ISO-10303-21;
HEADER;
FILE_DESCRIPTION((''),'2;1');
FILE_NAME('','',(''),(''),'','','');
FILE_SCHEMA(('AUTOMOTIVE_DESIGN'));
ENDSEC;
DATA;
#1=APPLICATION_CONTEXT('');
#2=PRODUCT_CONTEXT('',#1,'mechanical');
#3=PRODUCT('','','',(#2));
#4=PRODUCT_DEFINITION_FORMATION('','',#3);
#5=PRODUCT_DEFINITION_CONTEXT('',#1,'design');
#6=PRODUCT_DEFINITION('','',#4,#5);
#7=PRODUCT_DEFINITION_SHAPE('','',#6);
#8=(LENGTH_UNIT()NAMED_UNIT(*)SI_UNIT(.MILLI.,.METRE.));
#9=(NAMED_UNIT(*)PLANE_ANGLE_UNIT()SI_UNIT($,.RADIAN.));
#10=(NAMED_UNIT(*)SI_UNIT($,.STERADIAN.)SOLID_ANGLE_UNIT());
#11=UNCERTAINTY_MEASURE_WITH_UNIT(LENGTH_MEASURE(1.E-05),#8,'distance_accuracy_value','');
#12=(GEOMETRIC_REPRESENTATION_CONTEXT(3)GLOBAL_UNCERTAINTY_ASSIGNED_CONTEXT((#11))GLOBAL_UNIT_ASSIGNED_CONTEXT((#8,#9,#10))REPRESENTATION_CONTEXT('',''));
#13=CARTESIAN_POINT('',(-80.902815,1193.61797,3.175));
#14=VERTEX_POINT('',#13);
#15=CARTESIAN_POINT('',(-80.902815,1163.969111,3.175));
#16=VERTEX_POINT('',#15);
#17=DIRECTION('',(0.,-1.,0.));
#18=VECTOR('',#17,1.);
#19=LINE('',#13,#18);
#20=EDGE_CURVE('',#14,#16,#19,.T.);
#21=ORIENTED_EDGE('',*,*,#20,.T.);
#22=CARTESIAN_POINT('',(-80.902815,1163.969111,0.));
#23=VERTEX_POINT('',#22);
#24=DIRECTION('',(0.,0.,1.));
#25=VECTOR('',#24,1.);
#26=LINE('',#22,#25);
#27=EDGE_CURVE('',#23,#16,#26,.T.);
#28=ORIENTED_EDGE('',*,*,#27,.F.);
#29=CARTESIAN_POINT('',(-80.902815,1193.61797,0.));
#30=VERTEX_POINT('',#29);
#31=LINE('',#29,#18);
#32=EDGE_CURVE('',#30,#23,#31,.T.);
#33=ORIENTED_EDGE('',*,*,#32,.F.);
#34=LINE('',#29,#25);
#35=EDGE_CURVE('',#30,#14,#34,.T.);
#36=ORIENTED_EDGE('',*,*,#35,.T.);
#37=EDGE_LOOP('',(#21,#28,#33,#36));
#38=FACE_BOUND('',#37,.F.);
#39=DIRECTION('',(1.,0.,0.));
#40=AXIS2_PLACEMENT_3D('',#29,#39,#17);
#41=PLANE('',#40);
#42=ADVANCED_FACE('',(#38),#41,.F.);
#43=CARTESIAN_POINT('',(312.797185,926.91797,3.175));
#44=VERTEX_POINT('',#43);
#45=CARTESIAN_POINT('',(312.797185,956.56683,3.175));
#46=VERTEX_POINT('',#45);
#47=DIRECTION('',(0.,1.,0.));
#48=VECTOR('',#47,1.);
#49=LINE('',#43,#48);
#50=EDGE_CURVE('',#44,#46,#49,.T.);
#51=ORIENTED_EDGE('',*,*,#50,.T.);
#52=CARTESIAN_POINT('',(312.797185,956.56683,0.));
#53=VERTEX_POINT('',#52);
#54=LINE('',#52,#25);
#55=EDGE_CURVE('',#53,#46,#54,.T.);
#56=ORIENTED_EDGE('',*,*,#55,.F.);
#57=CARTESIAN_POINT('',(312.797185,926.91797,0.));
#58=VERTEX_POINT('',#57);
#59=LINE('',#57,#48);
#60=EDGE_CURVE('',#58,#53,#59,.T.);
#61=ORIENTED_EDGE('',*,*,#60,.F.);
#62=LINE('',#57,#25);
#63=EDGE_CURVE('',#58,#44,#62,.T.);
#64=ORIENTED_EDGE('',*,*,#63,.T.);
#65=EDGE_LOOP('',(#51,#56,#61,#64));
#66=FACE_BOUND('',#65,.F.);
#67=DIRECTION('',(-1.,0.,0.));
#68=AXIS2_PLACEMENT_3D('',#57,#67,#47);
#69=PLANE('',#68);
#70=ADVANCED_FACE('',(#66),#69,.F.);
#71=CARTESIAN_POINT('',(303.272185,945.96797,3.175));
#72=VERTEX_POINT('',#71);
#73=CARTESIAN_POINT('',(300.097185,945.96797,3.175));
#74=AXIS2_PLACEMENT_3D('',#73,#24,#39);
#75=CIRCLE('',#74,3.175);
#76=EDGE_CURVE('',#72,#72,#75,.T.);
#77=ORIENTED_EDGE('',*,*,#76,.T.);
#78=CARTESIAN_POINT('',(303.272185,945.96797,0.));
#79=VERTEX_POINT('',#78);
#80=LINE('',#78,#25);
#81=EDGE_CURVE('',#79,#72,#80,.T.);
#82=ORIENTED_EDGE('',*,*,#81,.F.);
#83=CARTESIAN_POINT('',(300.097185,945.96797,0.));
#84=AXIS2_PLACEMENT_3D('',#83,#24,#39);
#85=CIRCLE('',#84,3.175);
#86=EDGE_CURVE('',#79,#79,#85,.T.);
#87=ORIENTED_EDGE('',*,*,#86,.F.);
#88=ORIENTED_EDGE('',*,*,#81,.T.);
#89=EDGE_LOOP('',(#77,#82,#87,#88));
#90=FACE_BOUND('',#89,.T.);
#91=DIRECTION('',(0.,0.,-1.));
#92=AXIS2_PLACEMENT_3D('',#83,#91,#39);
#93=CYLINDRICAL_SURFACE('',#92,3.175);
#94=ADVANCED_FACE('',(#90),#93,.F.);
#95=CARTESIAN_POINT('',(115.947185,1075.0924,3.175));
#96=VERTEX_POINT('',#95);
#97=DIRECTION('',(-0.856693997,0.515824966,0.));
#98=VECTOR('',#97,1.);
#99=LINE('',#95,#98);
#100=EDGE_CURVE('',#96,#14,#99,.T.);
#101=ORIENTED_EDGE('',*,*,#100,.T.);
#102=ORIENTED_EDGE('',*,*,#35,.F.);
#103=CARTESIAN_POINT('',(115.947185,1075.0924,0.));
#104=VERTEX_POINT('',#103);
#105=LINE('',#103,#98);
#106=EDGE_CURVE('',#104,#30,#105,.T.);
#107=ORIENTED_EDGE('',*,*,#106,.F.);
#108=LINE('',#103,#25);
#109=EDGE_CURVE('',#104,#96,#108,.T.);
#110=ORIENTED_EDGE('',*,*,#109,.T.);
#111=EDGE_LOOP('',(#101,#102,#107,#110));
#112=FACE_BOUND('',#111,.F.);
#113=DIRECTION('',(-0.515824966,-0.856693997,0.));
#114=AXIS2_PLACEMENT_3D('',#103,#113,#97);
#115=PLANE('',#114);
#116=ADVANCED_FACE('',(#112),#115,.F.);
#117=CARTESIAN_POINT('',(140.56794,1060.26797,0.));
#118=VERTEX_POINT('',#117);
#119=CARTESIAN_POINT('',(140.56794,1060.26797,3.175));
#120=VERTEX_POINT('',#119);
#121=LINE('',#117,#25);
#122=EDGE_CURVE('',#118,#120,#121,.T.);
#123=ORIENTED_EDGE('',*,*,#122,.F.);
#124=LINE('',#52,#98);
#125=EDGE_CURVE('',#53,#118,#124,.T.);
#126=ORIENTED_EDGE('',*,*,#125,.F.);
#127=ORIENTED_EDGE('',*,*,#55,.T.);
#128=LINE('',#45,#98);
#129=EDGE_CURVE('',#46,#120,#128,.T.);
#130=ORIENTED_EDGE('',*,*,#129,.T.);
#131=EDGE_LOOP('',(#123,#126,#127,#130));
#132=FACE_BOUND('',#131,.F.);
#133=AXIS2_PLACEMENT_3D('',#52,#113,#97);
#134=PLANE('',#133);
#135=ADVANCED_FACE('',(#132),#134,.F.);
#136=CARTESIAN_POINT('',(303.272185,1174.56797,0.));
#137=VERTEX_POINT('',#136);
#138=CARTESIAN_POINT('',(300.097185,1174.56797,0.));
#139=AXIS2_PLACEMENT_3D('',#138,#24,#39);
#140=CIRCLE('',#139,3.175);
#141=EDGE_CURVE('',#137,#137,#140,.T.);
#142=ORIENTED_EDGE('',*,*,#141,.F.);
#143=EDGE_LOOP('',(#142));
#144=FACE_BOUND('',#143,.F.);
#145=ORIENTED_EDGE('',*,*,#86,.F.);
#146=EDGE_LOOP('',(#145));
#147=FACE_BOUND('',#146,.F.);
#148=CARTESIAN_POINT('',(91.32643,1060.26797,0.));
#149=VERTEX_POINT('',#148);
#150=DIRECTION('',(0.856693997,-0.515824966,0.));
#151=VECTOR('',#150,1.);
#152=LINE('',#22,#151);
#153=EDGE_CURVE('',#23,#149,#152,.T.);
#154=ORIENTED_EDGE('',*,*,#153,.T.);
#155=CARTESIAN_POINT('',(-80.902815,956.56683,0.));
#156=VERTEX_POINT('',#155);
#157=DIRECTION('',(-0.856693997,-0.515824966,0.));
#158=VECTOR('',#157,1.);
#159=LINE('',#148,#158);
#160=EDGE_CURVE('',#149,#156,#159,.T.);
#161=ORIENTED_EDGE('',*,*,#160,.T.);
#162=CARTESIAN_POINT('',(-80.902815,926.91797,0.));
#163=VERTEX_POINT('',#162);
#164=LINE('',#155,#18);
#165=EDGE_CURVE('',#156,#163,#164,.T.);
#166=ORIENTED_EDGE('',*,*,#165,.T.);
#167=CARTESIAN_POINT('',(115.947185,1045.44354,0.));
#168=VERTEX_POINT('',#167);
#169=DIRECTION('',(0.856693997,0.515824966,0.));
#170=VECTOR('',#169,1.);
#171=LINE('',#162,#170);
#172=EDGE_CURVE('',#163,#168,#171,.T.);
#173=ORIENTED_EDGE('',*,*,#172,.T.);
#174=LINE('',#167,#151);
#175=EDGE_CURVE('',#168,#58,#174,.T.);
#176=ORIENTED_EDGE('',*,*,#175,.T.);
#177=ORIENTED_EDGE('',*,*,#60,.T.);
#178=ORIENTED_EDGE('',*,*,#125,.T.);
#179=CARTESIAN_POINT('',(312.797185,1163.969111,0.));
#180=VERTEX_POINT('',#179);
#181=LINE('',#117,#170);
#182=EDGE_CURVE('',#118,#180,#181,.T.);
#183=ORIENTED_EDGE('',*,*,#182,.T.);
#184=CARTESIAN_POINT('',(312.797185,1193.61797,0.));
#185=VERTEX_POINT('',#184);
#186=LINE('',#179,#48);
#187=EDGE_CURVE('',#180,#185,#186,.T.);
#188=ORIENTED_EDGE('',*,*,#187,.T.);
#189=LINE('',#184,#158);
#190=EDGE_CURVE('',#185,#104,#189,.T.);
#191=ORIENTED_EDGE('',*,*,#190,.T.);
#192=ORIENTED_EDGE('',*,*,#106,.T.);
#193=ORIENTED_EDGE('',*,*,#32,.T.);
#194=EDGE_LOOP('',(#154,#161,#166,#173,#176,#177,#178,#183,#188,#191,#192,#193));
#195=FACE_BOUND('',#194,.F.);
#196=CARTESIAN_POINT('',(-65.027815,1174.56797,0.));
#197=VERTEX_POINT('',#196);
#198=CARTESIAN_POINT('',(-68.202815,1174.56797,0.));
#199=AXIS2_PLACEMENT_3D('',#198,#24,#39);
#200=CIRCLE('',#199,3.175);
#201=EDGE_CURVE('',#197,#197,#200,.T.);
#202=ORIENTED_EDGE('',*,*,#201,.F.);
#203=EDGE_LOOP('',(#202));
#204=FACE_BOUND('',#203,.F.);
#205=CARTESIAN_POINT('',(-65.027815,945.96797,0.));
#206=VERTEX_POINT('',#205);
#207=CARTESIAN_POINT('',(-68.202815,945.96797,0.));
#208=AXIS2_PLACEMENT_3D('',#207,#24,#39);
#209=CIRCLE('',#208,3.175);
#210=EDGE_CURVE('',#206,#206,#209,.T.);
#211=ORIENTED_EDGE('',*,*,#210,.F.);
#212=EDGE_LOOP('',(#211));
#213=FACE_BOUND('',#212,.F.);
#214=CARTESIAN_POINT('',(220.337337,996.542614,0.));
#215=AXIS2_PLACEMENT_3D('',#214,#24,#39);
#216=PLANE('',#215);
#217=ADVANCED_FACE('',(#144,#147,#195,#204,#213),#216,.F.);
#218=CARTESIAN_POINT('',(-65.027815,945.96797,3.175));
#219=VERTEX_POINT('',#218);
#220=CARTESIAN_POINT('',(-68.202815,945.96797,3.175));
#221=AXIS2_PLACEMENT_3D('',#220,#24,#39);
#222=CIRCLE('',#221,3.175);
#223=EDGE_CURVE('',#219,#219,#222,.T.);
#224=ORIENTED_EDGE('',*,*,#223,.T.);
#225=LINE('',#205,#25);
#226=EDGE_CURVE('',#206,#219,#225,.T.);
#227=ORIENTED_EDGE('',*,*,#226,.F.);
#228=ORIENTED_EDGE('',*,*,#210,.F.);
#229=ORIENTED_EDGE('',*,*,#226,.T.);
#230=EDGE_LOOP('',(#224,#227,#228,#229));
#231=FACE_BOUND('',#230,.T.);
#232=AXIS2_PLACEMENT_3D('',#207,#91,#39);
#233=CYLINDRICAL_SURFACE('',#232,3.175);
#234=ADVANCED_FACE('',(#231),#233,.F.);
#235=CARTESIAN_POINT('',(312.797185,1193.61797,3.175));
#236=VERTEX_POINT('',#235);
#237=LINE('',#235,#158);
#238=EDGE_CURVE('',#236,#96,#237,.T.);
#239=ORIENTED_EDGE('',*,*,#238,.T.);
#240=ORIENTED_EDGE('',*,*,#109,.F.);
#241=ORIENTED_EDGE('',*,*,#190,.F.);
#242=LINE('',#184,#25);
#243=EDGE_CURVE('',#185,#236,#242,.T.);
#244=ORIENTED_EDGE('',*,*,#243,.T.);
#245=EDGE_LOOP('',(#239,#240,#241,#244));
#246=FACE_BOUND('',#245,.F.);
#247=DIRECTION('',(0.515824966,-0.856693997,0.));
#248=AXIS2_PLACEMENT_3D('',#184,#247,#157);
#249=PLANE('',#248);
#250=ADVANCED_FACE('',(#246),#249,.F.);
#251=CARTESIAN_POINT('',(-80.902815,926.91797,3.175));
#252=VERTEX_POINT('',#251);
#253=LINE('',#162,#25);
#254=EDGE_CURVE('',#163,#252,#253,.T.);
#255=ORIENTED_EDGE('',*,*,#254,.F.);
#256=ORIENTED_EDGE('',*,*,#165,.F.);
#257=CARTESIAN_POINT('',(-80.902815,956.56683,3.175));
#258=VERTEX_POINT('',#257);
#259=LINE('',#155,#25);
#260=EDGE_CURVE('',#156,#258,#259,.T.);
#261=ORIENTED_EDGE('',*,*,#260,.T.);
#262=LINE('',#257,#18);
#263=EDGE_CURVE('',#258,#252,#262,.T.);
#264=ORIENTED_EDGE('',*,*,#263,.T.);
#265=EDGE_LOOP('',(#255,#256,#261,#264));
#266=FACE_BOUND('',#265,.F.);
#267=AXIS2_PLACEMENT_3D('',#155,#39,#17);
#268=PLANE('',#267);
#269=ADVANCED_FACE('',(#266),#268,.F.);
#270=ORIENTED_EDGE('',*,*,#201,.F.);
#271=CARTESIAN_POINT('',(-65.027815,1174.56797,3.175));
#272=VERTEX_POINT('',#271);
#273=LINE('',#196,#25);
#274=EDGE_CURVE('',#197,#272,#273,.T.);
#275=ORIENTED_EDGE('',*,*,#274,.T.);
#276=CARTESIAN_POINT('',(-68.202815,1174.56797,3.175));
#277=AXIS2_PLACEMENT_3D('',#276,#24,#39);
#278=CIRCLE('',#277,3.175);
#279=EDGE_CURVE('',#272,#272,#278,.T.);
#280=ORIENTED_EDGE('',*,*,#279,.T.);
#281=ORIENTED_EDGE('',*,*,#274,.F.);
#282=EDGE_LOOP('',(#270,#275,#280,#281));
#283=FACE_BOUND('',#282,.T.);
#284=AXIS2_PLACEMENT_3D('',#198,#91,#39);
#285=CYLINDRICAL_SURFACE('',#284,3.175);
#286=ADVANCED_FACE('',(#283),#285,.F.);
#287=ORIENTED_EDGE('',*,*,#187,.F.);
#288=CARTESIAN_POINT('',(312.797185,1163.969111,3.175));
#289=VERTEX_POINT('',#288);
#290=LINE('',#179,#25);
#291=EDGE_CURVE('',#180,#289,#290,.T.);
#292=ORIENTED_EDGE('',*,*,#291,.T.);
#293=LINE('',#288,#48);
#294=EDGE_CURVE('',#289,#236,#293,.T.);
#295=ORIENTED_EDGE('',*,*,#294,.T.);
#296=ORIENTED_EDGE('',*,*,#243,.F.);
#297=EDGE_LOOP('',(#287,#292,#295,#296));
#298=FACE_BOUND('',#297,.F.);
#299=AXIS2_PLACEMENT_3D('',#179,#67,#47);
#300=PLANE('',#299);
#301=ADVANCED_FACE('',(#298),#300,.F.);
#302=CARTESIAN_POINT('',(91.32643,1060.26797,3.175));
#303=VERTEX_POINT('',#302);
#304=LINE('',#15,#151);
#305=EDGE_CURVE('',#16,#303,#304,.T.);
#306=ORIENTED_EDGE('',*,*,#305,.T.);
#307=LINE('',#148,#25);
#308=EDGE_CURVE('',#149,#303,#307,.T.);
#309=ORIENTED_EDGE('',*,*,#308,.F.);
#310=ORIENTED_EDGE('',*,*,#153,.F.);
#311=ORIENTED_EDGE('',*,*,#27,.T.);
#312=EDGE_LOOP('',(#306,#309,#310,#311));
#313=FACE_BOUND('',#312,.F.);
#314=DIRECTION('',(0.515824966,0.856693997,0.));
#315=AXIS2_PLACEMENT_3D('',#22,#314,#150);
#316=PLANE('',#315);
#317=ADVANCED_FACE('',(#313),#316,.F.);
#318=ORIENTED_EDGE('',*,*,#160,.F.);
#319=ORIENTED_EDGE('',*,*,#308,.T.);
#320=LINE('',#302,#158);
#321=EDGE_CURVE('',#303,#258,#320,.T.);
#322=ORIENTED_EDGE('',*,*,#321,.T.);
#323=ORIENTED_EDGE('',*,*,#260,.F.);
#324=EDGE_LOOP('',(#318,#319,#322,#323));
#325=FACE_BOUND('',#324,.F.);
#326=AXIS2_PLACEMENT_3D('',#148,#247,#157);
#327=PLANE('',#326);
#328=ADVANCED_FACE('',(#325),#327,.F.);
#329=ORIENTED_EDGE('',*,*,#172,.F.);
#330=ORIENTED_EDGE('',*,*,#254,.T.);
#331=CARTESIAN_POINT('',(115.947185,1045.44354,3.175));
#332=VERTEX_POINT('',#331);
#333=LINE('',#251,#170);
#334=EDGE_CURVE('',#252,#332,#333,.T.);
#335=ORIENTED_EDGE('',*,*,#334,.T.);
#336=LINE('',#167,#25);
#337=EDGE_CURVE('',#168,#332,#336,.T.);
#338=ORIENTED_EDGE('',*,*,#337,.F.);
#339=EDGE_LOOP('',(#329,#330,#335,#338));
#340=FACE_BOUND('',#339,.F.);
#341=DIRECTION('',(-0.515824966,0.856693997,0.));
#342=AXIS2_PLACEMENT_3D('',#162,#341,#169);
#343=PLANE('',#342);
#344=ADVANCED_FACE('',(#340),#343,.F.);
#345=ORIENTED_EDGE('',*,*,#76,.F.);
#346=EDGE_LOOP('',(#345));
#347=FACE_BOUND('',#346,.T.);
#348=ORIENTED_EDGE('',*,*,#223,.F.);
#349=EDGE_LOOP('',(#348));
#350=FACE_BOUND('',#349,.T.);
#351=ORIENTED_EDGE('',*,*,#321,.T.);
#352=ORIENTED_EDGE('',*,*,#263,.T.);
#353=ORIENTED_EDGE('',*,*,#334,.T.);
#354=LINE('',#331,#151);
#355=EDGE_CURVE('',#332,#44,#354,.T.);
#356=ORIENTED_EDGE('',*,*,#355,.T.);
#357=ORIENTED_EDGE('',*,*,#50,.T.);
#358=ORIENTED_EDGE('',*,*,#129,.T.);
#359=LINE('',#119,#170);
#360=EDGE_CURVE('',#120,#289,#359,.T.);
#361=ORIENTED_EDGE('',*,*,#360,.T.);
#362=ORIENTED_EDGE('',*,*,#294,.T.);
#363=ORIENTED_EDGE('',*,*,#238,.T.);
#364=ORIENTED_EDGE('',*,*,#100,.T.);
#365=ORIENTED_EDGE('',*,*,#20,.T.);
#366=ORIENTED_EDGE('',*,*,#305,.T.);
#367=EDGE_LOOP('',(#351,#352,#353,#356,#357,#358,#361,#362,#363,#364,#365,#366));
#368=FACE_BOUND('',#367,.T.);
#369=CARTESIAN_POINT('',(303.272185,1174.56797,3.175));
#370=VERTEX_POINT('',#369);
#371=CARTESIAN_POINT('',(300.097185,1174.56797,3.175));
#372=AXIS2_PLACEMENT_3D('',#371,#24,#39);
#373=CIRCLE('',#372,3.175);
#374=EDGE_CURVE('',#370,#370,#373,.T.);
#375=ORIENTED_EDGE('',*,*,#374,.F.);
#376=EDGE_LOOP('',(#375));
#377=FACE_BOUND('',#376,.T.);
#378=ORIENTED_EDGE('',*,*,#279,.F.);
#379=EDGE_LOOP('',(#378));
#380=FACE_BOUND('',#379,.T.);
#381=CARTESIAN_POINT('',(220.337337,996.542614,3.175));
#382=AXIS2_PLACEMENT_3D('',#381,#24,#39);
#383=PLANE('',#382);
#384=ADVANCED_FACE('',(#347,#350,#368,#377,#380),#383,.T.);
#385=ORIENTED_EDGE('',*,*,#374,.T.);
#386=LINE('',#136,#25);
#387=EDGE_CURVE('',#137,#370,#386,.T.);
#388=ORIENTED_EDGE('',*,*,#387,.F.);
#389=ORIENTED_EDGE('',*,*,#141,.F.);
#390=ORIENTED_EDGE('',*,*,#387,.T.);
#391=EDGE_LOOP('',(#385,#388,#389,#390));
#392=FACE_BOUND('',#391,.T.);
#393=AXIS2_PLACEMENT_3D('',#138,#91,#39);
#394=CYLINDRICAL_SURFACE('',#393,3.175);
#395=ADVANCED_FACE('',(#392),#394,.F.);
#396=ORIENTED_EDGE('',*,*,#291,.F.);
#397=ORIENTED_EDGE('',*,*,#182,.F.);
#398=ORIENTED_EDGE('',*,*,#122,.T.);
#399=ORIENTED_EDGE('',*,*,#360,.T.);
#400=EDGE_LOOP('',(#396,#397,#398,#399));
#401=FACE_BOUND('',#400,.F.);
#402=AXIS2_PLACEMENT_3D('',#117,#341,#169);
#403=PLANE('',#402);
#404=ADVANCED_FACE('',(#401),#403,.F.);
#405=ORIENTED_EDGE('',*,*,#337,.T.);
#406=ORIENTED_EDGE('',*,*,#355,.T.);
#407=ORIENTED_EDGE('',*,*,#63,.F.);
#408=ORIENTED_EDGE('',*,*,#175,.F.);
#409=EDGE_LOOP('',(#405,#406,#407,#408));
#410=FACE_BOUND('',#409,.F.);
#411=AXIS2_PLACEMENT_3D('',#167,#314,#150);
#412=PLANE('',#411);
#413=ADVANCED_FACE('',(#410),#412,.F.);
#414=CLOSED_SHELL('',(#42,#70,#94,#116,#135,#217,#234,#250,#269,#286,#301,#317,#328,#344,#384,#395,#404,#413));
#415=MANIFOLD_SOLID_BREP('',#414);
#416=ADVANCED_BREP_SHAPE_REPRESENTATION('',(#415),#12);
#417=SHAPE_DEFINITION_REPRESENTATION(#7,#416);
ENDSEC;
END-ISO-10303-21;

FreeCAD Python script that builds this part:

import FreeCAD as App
import Part
import Sketcher

V = App.Vector
Q = App.Units.Quantity

doc = App.newDocument("Part")
params = doc.addObject("Spreadsheet::Sheet", "Params")
for row, (alias, value) in enumerate([
    ("sketch1_diameter", "0.25 in"),
    ("pad1_length", "0.125 in"),
], start=1):
    params.set(f"A{row}", alias)
    params.set(f"B{row}", "=" + value)
    params.setAlias(f"B{row}", alias)

body = doc.addObject("PartDesign::Body", "Body")

# Sketch on XY plane
sketch1 = body.newObject("Sketcher::SketchObject", "Sketch")
sketch1.AttachmentSupport = (doc.getObject("XY_Plane"), [""])
sketch1.MapMode = "FlatFace"
sketch1.addGeometry([
    Part.LineSegment(V(312.797185, 956.56683, 0), V(140.56794, 1060.26797, 0)),  # 0
    Part.LineSegment(V(140.56794, 1060.26797, 0), V(312.797185, 1163.969111, 0)),  # 1
    Part.LineSegment(V(312.797185, 1163.969111, 0), V(312.797185, 1193.61797, 0)),  # 2
    Part.LineSegment(V(312.797185, 1193.61797, 0), V(115.947185, 1075.0924, 0)),  # 3
    Part.LineSegment(V(115.947185, 1075.0924, 0), V(-80.902815, 1193.61797, 0)),  # 4
    Part.LineSegment(V(-80.902815, 1193.61797, 0), V(-80.902815, 1163.969111, 0)),  # 5
    Part.LineSegment(V(-80.902815, 1163.969111, 0), V(91.32643, 1060.26797, 0)),  # 6
    Part.LineSegment(V(91.32643, 1060.26797, 0), V(-80.902815, 956.56683, 0)),  # 7
    Part.LineSegment(V(-80.902815, 956.56683, 0), V(-80.902815, 926.91797, 0)),  # 8
    Part.LineSegment(V(-80.902815, 926.91797, 0), V(115.947185, 1045.44354, 0)),  # 9
    Part.LineSegment(V(115.947185, 1045.44354, 0), V(312.797185, 926.91797, 0)),  # 10
    Part.LineSegment(V(312.797185, 926.91797, 0), V(312.797185, 956.56683, 0)),  # 11
    Part.Circle(V(300.097185, 945.96797, 0), V(0, 0, 1), 3.175),  # 12
    Part.Circle(V(-68.202815, 945.96797, 0), V(0, 0, 1), 3.175),  # 13
    Part.Circle(V(-68.202815, 1174.56797, 0), V(0, 0, 1), 3.175),  # 14
    Part.Circle(V(300.097185, 1174.56797, 0), V(0, 0, 1), 3.175),  # 15
], False)
sketch1.addConstraint([
    Sketcher.Constraint("Coincident", 0, 2, 1, 1),
    Sketcher.Constraint("Coincident", 1, 2, 2, 1),
    Sketcher.Constraint("Coincident", 2, 2, 3, 1),
    Sketcher.Constraint("Coincident", 3, 2, 4, 1),
    Sketcher.Constraint("Coincident", 4, 2, 5, 1),
    Sketcher.Constraint("Coincident", 5, 2, 6, 1),
    Sketcher.Constraint("Coincident", 6, 2, 7, 1),
    Sketcher.Constraint("Coincident", 7, 2, 8, 1),
    Sketcher.Constraint("Coincident", 8, 2, 9, 1),
    Sketcher.Constraint("Coincident", 9, 2, 10, 1),
    Sketcher.Constraint("Coincident", 10, 2, 11, 1),
    Sketcher.Constraint("Coincident", 11, 2, 0, 1),
    Sketcher.Constraint("Vertical", 2),
    Sketcher.Constraint("Vertical", 5),
    Sketcher.Constraint("Vertical", 8),
    Sketcher.Constraint("Vertical", 11),
    Sketcher.Constraint("Equal", 12, 13),
    Sketcher.Constraint("Equal", 13, 14),
    Sketcher.Constraint("Equal", 14, 15),
    Sketcher.Constraint("Parallel", 1, 3),
    Sketcher.Constraint("Parallel", 0, 4),
    Sketcher.Constraint("Parallel", 4, 6),
    Sketcher.Constraint("Parallel", 3, 7),
    Sketcher.Constraint("Parallel", 7, 9),
    Sketcher.Constraint("Parallel", 6, 10),
    Sketcher.Constraint("Horizontal", 12, 3, 13, 3),
    Sketcher.Constraint("Horizontal", 14, 3, 15, 3),
    Sketcher.Constraint("Horizontal", 2, 2, 4, 2),
    Sketcher.Constraint("Horizontal", 1, 2, 5, 2),
    Sketcher.Constraint("Horizontal", 0, 2, 6, 2),
    Sketcher.Constraint("Horizontal", 8, 2, 10, 2),
    Sketcher.Constraint("Horizontal", 7, 2, 11, 2),
    Sketcher.Constraint("Vertical", 13, 3, 14, 3),
    Sketcher.Constraint("Vertical", 12, 3, 15, 3),
    Sketcher.Constraint("Vertical", 5, 2, 7, 2),
    Sketcher.Constraint("Vertical", 3, 2, 9, 2),
    Sketcher.Constraint("Equal", 5, 8),
    Sketcher.Constraint("Diameter", 12, Q("0.25 in")),
    Sketcher.Constraint("DistanceY", 13, 3, 14, 3, Q("9 in")),
    Sketcher.Constraint("DistanceX", 14, 3, 1, 2, Q("15 in")),
    Sketcher.Constraint("DistanceX", 4, 2, 15, 3, Q("15 in")),
    Sketcher.Constraint("DistanceX", 13, 3, 12, 3, Q("14.5 in")),
    Sketcher.Constraint("DistanceY", 0, 2, 15, 3, Q("4.5 in")),
    Sketcher.Constraint("DistanceY", 15, 3, 2, 2, Q("0.75 in")),
    Sketcher.Constraint("DistanceY", 2, 1, 2, 2, Q("29.64886 mm")),
    Sketcher.Constraint("DistanceY", -1, 1, 3, 2, Q("1075.0924 mm")),
    Sketcher.Constraint("Distance", 3, Q("229.778662 mm")),
    Sketcher.Constraint("DistanceX", -1, 1, 0, 2, Q("140.56794 mm")),
])
sketch1.setExpression("Constraints[37]", "Params.sketch1_diameter")
pad1 = body.newObject("PartDesign::Pad", "Pad")
pad1.Profile = sketch1
pad1.setExpression("Length", "Params.pad1_length")

doc.recompute()
